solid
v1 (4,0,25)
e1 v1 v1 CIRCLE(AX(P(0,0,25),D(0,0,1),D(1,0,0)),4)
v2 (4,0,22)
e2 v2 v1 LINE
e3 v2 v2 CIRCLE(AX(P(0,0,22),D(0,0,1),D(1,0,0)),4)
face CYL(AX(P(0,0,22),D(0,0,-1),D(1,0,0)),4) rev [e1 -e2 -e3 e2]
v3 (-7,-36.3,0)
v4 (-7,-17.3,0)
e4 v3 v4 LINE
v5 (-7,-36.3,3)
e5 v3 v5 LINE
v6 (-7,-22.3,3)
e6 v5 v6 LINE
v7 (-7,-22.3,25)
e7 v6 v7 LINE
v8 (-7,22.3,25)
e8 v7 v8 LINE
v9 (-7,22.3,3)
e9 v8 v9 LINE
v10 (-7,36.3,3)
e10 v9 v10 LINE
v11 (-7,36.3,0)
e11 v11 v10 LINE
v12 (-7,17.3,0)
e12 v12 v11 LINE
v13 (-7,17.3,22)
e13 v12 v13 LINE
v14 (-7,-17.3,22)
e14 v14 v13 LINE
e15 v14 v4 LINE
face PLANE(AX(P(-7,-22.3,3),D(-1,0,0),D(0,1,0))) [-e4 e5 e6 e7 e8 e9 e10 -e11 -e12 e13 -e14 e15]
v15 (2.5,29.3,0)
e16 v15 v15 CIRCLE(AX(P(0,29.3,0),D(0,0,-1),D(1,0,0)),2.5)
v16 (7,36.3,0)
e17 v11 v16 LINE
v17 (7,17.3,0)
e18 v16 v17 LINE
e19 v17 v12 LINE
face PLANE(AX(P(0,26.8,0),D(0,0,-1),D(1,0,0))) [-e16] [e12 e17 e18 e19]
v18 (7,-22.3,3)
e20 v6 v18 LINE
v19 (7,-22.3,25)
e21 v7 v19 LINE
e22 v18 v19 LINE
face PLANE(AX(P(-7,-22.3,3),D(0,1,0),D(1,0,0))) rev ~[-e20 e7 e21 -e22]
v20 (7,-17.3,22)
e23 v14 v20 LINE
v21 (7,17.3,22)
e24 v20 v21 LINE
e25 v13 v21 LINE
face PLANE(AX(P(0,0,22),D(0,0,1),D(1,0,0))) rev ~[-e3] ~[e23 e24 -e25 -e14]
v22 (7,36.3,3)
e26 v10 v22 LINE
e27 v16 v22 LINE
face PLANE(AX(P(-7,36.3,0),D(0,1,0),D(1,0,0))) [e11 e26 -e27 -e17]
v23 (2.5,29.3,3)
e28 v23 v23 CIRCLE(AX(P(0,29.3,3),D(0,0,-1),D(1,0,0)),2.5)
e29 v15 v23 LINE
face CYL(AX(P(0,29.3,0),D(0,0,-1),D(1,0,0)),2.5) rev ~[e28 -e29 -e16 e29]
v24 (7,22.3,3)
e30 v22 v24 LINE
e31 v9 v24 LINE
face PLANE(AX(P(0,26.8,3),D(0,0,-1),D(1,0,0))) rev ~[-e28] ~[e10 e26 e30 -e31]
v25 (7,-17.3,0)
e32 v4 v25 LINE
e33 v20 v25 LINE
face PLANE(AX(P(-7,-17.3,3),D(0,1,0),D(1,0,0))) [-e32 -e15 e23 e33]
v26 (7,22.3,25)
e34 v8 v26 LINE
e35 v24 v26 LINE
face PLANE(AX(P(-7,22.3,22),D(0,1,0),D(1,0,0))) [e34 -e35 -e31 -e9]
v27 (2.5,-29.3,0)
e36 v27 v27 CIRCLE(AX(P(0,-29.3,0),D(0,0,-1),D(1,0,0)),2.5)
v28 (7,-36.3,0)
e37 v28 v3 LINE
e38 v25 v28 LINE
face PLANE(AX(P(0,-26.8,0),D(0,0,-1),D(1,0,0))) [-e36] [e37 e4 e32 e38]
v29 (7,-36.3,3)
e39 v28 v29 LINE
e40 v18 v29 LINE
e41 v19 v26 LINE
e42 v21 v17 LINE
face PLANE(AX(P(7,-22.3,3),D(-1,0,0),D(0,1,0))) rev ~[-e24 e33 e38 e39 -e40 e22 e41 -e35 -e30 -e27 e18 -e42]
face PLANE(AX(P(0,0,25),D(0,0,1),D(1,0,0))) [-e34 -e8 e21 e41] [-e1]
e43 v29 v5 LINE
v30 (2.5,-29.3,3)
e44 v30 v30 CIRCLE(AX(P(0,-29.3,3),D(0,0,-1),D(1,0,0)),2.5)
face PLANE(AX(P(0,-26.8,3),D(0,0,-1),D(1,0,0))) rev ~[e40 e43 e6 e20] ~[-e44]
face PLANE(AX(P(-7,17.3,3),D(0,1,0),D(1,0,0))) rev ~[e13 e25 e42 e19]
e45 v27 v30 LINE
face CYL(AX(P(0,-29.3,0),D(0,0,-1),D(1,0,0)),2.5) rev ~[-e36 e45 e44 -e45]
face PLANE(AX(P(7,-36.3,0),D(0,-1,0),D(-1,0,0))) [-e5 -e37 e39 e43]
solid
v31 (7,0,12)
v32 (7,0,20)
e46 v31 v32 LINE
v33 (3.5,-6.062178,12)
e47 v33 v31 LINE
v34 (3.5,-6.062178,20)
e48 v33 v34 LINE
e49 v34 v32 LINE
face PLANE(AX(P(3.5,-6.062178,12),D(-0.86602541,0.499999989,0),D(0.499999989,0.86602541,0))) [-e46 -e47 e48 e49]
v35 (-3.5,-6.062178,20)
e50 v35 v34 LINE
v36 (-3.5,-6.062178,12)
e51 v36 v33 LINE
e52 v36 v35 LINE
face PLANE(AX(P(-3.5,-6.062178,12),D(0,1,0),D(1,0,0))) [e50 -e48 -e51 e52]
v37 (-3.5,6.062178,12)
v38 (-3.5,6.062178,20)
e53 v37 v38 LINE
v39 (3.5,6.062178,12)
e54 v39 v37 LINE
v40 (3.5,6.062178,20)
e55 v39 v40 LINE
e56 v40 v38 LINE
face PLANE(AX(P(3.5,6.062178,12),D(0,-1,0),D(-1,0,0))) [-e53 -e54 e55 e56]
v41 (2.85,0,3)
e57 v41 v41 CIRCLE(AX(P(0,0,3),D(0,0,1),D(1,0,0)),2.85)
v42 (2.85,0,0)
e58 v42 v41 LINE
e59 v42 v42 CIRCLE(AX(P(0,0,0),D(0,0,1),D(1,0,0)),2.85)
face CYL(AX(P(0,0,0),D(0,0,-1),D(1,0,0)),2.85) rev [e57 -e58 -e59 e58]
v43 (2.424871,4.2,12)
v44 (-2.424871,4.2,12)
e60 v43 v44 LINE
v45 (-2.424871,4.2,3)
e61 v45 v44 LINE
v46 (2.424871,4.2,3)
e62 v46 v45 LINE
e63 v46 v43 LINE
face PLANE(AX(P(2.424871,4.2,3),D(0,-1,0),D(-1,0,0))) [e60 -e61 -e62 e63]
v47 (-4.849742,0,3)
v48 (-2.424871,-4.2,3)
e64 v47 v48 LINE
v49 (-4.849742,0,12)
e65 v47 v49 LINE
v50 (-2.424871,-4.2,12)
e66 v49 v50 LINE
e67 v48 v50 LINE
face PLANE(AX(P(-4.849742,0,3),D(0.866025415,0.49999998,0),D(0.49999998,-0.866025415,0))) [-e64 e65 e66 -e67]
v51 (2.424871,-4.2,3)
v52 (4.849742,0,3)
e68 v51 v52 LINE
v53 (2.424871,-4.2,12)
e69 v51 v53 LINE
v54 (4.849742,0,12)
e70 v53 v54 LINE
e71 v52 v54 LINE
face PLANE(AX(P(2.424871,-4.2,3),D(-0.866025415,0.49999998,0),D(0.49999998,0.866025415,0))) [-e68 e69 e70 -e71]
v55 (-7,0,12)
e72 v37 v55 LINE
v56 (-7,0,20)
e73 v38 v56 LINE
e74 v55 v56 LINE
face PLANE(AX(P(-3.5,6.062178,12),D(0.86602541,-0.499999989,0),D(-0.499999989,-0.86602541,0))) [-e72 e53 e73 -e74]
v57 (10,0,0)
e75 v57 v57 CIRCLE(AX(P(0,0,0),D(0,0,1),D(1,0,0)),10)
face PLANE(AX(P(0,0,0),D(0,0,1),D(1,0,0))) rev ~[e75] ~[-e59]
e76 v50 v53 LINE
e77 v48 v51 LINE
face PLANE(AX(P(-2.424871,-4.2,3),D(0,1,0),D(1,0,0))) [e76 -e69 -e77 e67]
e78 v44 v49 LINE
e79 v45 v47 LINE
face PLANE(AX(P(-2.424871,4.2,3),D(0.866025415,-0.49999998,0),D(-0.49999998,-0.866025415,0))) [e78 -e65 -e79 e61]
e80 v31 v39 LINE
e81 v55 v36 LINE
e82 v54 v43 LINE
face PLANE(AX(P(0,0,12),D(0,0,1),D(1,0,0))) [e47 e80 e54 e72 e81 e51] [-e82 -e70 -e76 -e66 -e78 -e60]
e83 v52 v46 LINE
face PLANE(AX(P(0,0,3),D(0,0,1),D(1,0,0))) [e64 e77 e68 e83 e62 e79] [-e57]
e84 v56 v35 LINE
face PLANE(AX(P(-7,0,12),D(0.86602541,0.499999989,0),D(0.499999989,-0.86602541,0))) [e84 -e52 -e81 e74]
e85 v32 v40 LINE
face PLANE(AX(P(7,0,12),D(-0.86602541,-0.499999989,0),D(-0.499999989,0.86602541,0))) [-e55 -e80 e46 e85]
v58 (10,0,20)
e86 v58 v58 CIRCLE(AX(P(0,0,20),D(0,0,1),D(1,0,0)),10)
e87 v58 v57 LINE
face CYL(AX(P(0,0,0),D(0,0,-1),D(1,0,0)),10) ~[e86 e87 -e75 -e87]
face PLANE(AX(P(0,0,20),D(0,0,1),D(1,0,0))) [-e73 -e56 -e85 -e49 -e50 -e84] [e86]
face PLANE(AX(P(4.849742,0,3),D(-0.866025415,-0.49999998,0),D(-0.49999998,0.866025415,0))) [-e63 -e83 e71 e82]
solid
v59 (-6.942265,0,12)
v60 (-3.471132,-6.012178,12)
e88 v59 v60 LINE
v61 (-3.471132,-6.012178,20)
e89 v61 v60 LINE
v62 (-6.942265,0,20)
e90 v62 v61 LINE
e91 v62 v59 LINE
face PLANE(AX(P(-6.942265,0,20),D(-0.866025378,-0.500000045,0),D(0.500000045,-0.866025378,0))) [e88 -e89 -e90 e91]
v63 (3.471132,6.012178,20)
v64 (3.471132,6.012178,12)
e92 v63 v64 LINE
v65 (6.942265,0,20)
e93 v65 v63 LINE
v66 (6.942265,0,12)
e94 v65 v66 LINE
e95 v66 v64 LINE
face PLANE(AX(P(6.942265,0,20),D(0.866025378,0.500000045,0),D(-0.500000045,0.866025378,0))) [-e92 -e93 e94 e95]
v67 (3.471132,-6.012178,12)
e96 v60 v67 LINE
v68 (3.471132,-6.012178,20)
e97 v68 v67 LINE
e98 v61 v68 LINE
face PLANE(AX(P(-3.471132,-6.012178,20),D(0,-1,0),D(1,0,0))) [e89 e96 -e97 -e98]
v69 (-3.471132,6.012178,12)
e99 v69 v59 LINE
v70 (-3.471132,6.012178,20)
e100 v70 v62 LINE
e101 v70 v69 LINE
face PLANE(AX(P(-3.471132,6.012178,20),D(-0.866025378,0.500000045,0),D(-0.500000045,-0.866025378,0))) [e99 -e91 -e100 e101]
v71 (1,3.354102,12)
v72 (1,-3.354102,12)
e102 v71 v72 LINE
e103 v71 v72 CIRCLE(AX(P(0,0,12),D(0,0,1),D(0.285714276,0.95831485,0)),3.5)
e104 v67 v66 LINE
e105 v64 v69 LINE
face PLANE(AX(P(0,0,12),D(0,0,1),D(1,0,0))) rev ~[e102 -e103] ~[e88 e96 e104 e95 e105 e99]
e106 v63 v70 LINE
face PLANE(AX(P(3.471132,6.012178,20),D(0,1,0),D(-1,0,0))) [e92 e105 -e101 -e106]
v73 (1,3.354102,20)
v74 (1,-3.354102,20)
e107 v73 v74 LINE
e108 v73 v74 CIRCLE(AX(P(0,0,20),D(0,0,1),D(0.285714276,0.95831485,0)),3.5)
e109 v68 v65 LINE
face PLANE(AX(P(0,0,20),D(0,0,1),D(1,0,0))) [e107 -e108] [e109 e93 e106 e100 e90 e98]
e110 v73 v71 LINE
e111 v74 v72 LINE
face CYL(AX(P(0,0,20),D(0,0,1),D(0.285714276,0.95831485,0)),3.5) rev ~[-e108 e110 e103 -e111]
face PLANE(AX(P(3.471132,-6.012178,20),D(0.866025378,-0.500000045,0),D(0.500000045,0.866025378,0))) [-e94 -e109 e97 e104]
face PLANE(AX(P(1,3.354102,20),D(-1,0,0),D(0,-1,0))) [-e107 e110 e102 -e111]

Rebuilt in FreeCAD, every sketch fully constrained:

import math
import FreeCAD as App
import Part
import Sketcher
from FreeCAD import Vector
Q = App.Units.Quantity

doc = App.newDocument("Part")
body = doc.addObject("PartDesign::Body", "Body")
body.AllowCompound = True

# Sketch on XY plane
sketch1 = body.newObject("Sketcher::SketchObject", "Sketch")
sketch1.AttachmentSupport = (doc.getObject("XY_Plane"), [""])
sketch1.MapMode = "FlatFace"
sketch1.addGeometry([
    Part.LineSegment(Vector(7, -36.3, 0), Vector(-7, -36.3, 0)),  # 0
    Part.LineSegment(Vector(-7, -36.3, 0), Vector(-7, -17.3, 0)),  # 1
    Part.LineSegment(Vector(-7, -17.3, 0), Vector(7, -17.3, 0)),  # 2
    Part.LineSegment(Vector(7, -17.3, 0), Vector(7, -36.3, 0)),  # 3
    Part.Circle(Vector(0, -29.3, 0), Vector(0, 0, 1), 2.5),  # 4
    Part.LineSegment(Vector(7, 36.3, 0), Vector(7, 17.3, 0)),  # 5
    Part.LineSegment(Vector(7, 17.3, 0), Vector(-7, 17.3, 0)),  # 6
    Part.LineSegment(Vector(-7, 17.3, 0), Vector(-7, 36.3, 0)),  # 7
    Part.LineSegment(Vector(-7, 36.3, 0), Vector(7, 36.3, 0)),  # 8
    Part.Circle(Vector(0, 29.3, 0), Vector(0, 0, 1), 2.5),  # 9
], False)
sketch1.addConstraint([
    Sketcher.Constraint("Coincident", 0, 2, 1, 1),
    Sketcher.Constraint("Coincident", 1, 2, 2, 1),
    Sketcher.Constraint("Coincident", 2, 2, 3, 1),
    Sketcher.Constraint("Coincident", 3, 2, 0, 1),
    Sketcher.Constraint("Coincident", 5, 2, 6, 1),
    Sketcher.Constraint("Coincident", 6, 2, 7, 1),
    Sketcher.Constraint("Coincident", 7, 2, 8, 1),
    Sketcher.Constraint("Coincident", 8, 2, 5, 1),
    Sketcher.Constraint("Horizontal", 0),
    Sketcher.Constraint("Vertical", 1),
    Sketcher.Constraint("Horizontal", 2),
    Sketcher.Constraint("Vertical", 3),
    Sketcher.Constraint("Vertical", 5),
    Sketcher.Constraint("Horizontal", 6),
    Sketcher.Constraint("Vertical", 7),
    Sketcher.Constraint("Horizontal", 8),
    Sketcher.Constraint("Equal", 4, 9),
    Sketcher.Constraint("Symmetric", 4, 3, 9, 3, -1, 1),
    Sketcher.Constraint("Symmetric", 1, 2, 5, 2, -1, 1),
    Sketcher.Constraint("Symmetric", 3, 2, 7, 2, -1, 1),
    Sketcher.Constraint("PointOnObject", 4, 3, -2),
    Sketcher.Constraint("Vertical", 3, 2, 5, 2),
    Sketcher.Constraint("Diameter", 4, Q("5 mm")),
    Sketcher.Constraint("DistanceX", 0, 2, 0, 1, Q("14 mm")),
    Sketcher.Constraint("DistanceY", 1, 1, 1, 2, Q("19 mm")),
    Sketcher.Constraint("DistanceY", 0, 2, 4, 3, Q("7 mm")),
    Sketcher.Constraint("DistanceY", 4, 3, -1, 1, Q("29.3 mm")),
])
pad1 = body.newObject("PartDesign::Pad", "Pad")
pad1.Profile = sketch1
pad1.Length = 3
body2 = doc.addObject("PartDesign::Body", "Body001")
body2.AllowCompound = True

# Sketch on XY plane
sketch2 = body2.newObject("Sketcher::SketchObject", "Sketch001")
sketch2.AttachmentSupport = (doc.getObject("XY_Plane001"), [""])
sketch2.MapMode = "FlatFace"
sketch2.AttachmentOffset = App.Placement(Vector(0, 0, 3), App.Rotation())
sketch2.addGeometry([
    Part.LineSegment(Vector(-7, 22, 0), Vector(-7, 17, 0)),  # 0
    Part.LineSegment(Vector(-7, 17, 0), Vector(7, 17, 0)),  # 1
    Part.LineSegment(Vector(7, 17, 0), Vector(7, 22, 0)),  # 2
    Part.LineSegment(Vector(7, 22, 0), Vector(-7, 22, 0)),  # 3
    Part.LineSegment(Vector(-7, -17, 0), Vector(-7, -22, 0)),  # 4
    Part.LineSegment(Vector(-7, -22, 0), Vector(7, -22, 0)),  # 5
    Part.LineSegment(Vector(7, -22, 0), Vector(7, -17, 0)),  # 6
    Part.LineSegment(Vector(7, -17, 0), Vector(-7, -17, 0)),  # 7
], False)
sketch2.addConstraint([
    Sketcher.Constraint("Coincident", 0, 2, 1, 1),
    Sketcher.Constraint("Coincident", 1, 2, 2, 1),
    Sketcher.Constraint("Coincident", 2, 2, 3, 1),
    Sketcher.Constraint("Coincident", 3, 2, 0, 1),
    Sketcher.Constraint("Coincident", 4, 2, 5, 1),
    Sketcher.Constraint("Coincident", 5, 2, 6, 1),
    Sketcher.Constraint("Coincident", 6, 2, 7, 1),
    Sketcher.Constraint("Coincident", 7, 2, 4, 1),
    Sketcher.Constraint("Vertical", 0),
    Sketcher.Constraint("Horizontal", 1),
    Sketcher.Constraint("Vertical", 2),
    Sketcher.Constraint("Horizontal", 3),
    Sketcher.Constraint("Vertical", 4),
    Sketcher.Constraint("Horizontal", 5),
    Sketcher.Constraint("Vertical", 6),
    Sketcher.Constraint("Horizontal", 7),
    Sketcher.Constraint("Symmetric", 2, 2, 4, 2, -1, 1),
    Sketcher.Constraint("Symmetric", 0, 2, 6, 2, -1, 1),
    Sketcher.Constraint("Vertical", 3, 2, 4, 2),
    Sketcher.Constraint("DistanceX", 1, 1, 1, 2, Q("14 mm")),
    Sketcher.Constraint("DistanceY", 0, 2, 0, 1, Q("5 mm")),
    Sketcher.Constraint("DistanceY", -1, 1, 0, 2, Q("17.3 mm")),
])
pad2 = body2.newObject("PartDesign::Pad", "Pad001")
pad2.Profile = sketch2
pad2.Length = 19
body3 = doc.addObject("PartDesign::Body", "Body002")
body3.AllowCompound = True

# Sketch on XY plane
sketch3 = body3.newObject("Sketcher::SketchObject", "Sketch002")
sketch3.AttachmentSupport = (doc.getObject("XY_Plane002"), [""])
sketch3.MapMode = "FlatFace"
sketch3.AttachmentOffset = App.Placement(Vector(0, 0, 22), App.Rotation())
sketch3.addGeometry([
    Part.LineSegment(Vector(-7, 22.3, 0), Vector(-7, -22.3, 0)),  # 0
    Part.LineSegment(Vector(-7, -22.3, 0), Vector(7, -22.3, 0)),  # 1
    Part.LineSegment(Vector(7, -22.3, 0), Vector(7, 22.3, 0)),  # 2
    Part.LineSegment(Vector(7, 22.3, 0), Vector(-7, 22.3, 0)),  # 3
    Part.Circle(Vector(0, 0, 0), Vector(0, 0, 1), 4),  # 4
], False)
sketch3.addConstraint([
    Sketcher.Constraint("Coincident", 0, 2, 1, 1),
    Sketcher.Constraint("Coincident", 1, 2, 2, 1),
    Sketcher.Constraint("Coincident", 2, 2, 3, 1),
    Sketcher.Constraint("Coincident", 3, 2, 0, 1),
    Sketcher.Constraint("Vertical", 0),
    Sketcher.Constraint("Horizontal", 1),
    Sketcher.Constraint("Vertical", 2),
    Sketcher.Constraint("Horizontal", 3),
    Sketcher.Constraint("Coincident", 4, 3, -1, 1),
    Sketcher.Constraint("Symmetric", 0, 2, 2, 2, -1, 1),
    Sketcher.Constraint("Diameter", 4, Q("8 mm")),
    Sketcher.Constraint("DistanceX", 1, 1, 1, 2, Q("14 mm")),
    Sketcher.Constraint("DistanceY", 0, 2, 0, 1, Q("44.6 mm")),
])
pad3 = body3.newObject("PartDesign::Pad", "Pad002")
pad3.Profile = sketch3
pad3.Length = 3
doc.recompute()

boolean = body3.newObject("PartDesign::Boolean", "Boolean")
boolean.Type = "Fuse"
boolean.addObjects([body])
doc.recompute()

boolean2 = body3.newObject("PartDesign::Boolean", "Boolean001")
boolean2.Type = "Fuse"
boolean2.addObjects([body2])
body4 = doc.addObject("PartDesign::Body", "Body003")

# Sketch on XY plane
sketch4 = body4.newObject("Sketcher::SketchObject", "Sketch003")
sketch4.AttachmentSupport = (doc.getObject("XY_Plane003"), [""])
sketch4.MapMode = "FlatFace"
sketch4.AttachmentOffset = App.Placement(Vector(0, 0, 3), App.Rotation())
sketch4.addGeometry([
    Part.Circle(Vector(0, 0, 0), Vector(0, 0, 1), 10),  # 0
    Part.LineSegment(Vector(-2.4, 4.2, 0), Vector(2.4, 4.2, 0)),  # 1
    Part.LineSegment(Vector(2.4, 4.2, 0), Vector(4.8, 0, 0)),  # 2
    Part.LineSegment(Vector(4.8, 0, 0), Vector(2.4, -4.2, 0)),  # 3
    Part.LineSegment(Vector(2.4, -4.2, 0), Vector(-2.4, -4.2, 0)),  # 4
    Part.LineSegment(Vector(-2.4, -4.2, 0), Vector(-4.8, 0, 0)),  # 5
    Part.LineSegment(Vector(-4.8, 0, 0), Vector(-2.4, 4.2, 0)),  # 6
], False)
sketch4.addConstraint([
    Sketcher.Constraint("Coincident", 1, 2, 2, 1),
    Sketcher.Constraint("Coincident", 2, 2, 3, 1),
    Sketcher.Constraint("Coincident", 3, 2, 4, 1),
    Sketcher.Constraint("Coincident", 4, 2, 5, 1),
    Sketcher.Constraint("Coincident", 5, 2, 6, 1),
    Sketcher.Constraint("Coincident", 6, 2, 1, 1),
    Sketcher.Constraint("Horizontal", 1),
    Sketcher.Constraint("Horizontal", 4),
    Sketcher.Constraint("Coincident", 0, 3, -1, 1),
    Sketcher.Constraint("Symmetric", 1, 2, 4, 2, -1, 1),
    Sketcher.Constraint("Symmetric", 2, 2, 5, 2, -1, 1),
    Sketcher.Constraint("PointOnObject", 2, 2, -1),
    Sketcher.Constraint("Parallel", 3, 6),
    Sketcher.Constraint("Vertical", 1, 2, 3, 2),
    Sketcher.Constraint("Diameter", 0, Q("20 mm")),
    Sketcher.Constraint("Angle", 2, Q("-60.000001 deg")),
    Sketcher.Constraint("DistanceY", -1, 1, 1, 2, Q("4.2 mm")),
    Sketcher.Constraint("DistanceX", 1, 1, 1, 2, Q("4.849742 mm")),
])
pad4 = body4.newObject("PartDesign::Pad", "Pad003")
pad4.Profile = sketch4
pad4.Length = 9
body5 = doc.addObject("PartDesign::Body", "Body004")

# Sketch on XY plane
sketch5 = body5.newObject("Sketcher::SketchObject", "Sketch004")
sketch5.AttachmentSupport = (doc.getObject("XY_Plane004"), [""])
sketch5.MapMode = "FlatFace"
sketch5.addGeometry([
    Part.Circle(Vector(0, 0, 0), Vector(0, 0, 1), 10),
    Part.Circle(Vector(0, 0, 0), Vector(0, 0, 1), 2.9),
], False)
sketch5.addConstraint([
    Sketcher.Constraint("Coincident", 0, 3, -1, 1),
    Sketcher.Constraint("Coincident", 1, 3, -1, 1),
    Sketcher.Constraint("Diameter", 0, Q("20 mm")),
    Sketcher.Constraint("Diameter", 1, Q("5.7 mm")),
])
pad5 = body5.newObject("PartDesign::Pad", "Pad004")
pad5.Profile = sketch5
pad5.Length = 3
body6 = doc.addObject("PartDesign::Body", "Body005")

# Sketch on XY plane
sketch6 = body6.newObject("Sketcher::SketchObject", "Sketch005")
sketch6.AttachmentSupport = (doc.getObject("XY_Plane005"), [""])
sketch6.MapMode = "FlatFace"
sketch6.AttachmentOffset = App.Placement(Vector(0, 0, 12), App.Rotation())
sketch6.addGeometry([
    Part.Circle(Vector(0, 0, 0), Vector(0, 0, 1), 10),  # 0
    Part.LineSegment(Vector(-4, 6, 0), Vector(4, 6, 0)),  # 1
    Part.LineSegment(Vector(4, 6, 0), Vector(7, 0, 0)),  # 2
    Part.LineSegment(Vector(7, 0, 0), Vector(4, -6, 0)),  # 3
    Part.LineSegment(Vector(4, -6, 0), Vector(-4, -6, 0)),  # 4
    Part.LineSegment(Vector(-4, -6, 0), Vector(-7, 0, 0)),  # 5
    Part.LineSegment(Vector(-7, 0, 0), Vector(-4, 6, 0)),  # 6
], False)
sketch6.addConstraint([
    Sketcher.Constraint("Coincident", 1, 2, 2, 1),
    Sketcher.Constraint("Coincident", 2, 2, 3, 1),
    Sketcher.Constraint("Coincident", 3, 2, 4, 1),
    Sketcher.Constraint("Coincident", 4, 2, 5, 1),
    Sketcher.Constraint("Coincident", 5, 2, 6, 1),
    Sketcher.Constraint("Coincident", 6, 2, 1, 1),
    Sketcher.Constraint("Horizontal", 1),
    Sketcher.Constraint("Horizontal", 4),
    Sketcher.Constraint("Coincident", 0, 3, -1, 1),
    Sketcher.Constraint("Symmetric", 1, 2, 4, 2, -1, 1),
    Sketcher.Constraint("Symmetric", 2, 2, 5, 2, -1, 1),
    Sketcher.Constraint("PointOnObject", 2, 2, -1),
    Sketcher.Constraint("Parallel", 3, 6),
    Sketcher.Constraint("Vertical", 1, 2, 3, 2),
    Sketcher.Constraint("Diameter", 0, Q("20 mm")),
    Sketcher.Constraint("DistanceX", 1, 1, 1, 2, Q("7 mm")),
    Sketcher.Constraint("Angle", 2, Q("-60.000001 deg")),
    Sketcher.Constraint("Distance", 2, Q("7 mm")),
])
pad6 = body6.newObject("PartDesign::Pad", "Pad005")
pad6.Profile = sketch6
pad6.Length = 8
doc.recompute()

boolean3 = body6.newObject("PartDesign::Boolean", "Boolean002")
boolean3.Type = "Fuse"
boolean3.addObjects([body4])
doc.recompute()

boolean4 = body6.newObject("PartDesign::Boolean", "Boolean003")
boolean4.Type = "Fuse"
boolean4.addObjects([body5])
body7 = doc.addObject("PartDesign::Body", "Body006")

# Sketch on XY plane
sketch7 = body7.newObject("Sketcher::SketchObject", "Sketch006")
sketch7.AttachmentSupport = (doc.getObject("XY_Plane006"), [""])
sketch7.MapMode = "FlatFace"
sketch7.AttachmentOffset = App.Placement(Vector(0, 0, 20), App.Rotation())
sketch7.addGeometry([
    Part.LineSegment(Vector(3.5, 6, 0), Vector(-3.5, 6, 0)),  # 0
    Part.LineSegment(Vector(-3.5, 6, 0), Vector(-6.9, 0, 0)),  # 1
    Part.LineSegment(Vector(-6.9, 0, 0), Vector(-3.5, -6, 0)),  # 2
    Part.LineSegment(Vector(-3.5, -6, 0), Vector(3.5, -6, 0)),  # 3
    Part.LineSegment(Vector(3.5, -6, 0), Vector(6.9, 0, 0)),  # 4
    Part.LineSegment(Vector(6.9, 0, 0), Vector(3.5, 6, 0)),  # 5
    Part.ArcOfCircle(Part.Circle(Vector(0, 0, 0), Vector(0, 0, 1), 3.5), math.radians(73), math.radians(287)),  # 6
    Part.LineSegment(Vector(1, 3.4, 0), Vector(1, -3.4, 0)),  # 7
], False)
sketch7.addConstraint([
    Sketcher.Constraint("Coincident", 0, 2, 1, 1),
    Sketcher.Constraint("Coincident", 1, 2, 2, 1),
    Sketcher.Constraint("Coincident", 2, 2, 3, 1),
    Sketcher.Constraint("Coincident", 3, 2, 4, 1),
    Sketcher.Constraint("Coincident", 4, 2, 5, 1),
    Sketcher.Constraint("Coincident", 5, 2, 0, 1),
    Sketcher.Constraint("Coincident", 6, 1, 7, 1),
    Sketcher.Constraint("Coincident", 7, 2, 6, 2),
    Sketcher.Constraint("Horizontal", 0),
    Sketcher.Constraint("Horizontal", 3),
    Sketcher.Constraint("Vertical", 7),
    Sketcher.Constraint("Coincident", 6, 3, -1, 1),
    Sketcher.Constraint("Symmetric", 0, 2, 3, 2, -1, 1),
    Sketcher.Constraint("Symmetric", 1, 2, 4, 2, -1, 1),
    Sketcher.Constraint("PointOnObject", 1, 2, -1),
    Sketcher.Constraint("Parallel", 2, 5),
    Sketcher.Constraint("Vertical", 0, 2, 2, 2),
    Sketcher.Constraint("Radius", 6, Q("3.5 mm")),
    Sketcher.Constraint("Angle", 1, Q("-120.000003 deg")),
    Sketcher.Constraint("DistanceX", -1, 1, 6, 1, Q("1 mm")),
    Sketcher.Constraint("DistanceX", 0, 2, 0, 1, Q("6.942264 mm")),
    Sketcher.Constraint("DistanceX", 1, 2, 4, 2, Q("13.88453 mm")),
])
pad7 = body7.newObject("PartDesign::Pad", "Pad006")
pad7.Profile = sketch7
pad7.Length = 8
pad7.Reversed = True

doc.recompute()
